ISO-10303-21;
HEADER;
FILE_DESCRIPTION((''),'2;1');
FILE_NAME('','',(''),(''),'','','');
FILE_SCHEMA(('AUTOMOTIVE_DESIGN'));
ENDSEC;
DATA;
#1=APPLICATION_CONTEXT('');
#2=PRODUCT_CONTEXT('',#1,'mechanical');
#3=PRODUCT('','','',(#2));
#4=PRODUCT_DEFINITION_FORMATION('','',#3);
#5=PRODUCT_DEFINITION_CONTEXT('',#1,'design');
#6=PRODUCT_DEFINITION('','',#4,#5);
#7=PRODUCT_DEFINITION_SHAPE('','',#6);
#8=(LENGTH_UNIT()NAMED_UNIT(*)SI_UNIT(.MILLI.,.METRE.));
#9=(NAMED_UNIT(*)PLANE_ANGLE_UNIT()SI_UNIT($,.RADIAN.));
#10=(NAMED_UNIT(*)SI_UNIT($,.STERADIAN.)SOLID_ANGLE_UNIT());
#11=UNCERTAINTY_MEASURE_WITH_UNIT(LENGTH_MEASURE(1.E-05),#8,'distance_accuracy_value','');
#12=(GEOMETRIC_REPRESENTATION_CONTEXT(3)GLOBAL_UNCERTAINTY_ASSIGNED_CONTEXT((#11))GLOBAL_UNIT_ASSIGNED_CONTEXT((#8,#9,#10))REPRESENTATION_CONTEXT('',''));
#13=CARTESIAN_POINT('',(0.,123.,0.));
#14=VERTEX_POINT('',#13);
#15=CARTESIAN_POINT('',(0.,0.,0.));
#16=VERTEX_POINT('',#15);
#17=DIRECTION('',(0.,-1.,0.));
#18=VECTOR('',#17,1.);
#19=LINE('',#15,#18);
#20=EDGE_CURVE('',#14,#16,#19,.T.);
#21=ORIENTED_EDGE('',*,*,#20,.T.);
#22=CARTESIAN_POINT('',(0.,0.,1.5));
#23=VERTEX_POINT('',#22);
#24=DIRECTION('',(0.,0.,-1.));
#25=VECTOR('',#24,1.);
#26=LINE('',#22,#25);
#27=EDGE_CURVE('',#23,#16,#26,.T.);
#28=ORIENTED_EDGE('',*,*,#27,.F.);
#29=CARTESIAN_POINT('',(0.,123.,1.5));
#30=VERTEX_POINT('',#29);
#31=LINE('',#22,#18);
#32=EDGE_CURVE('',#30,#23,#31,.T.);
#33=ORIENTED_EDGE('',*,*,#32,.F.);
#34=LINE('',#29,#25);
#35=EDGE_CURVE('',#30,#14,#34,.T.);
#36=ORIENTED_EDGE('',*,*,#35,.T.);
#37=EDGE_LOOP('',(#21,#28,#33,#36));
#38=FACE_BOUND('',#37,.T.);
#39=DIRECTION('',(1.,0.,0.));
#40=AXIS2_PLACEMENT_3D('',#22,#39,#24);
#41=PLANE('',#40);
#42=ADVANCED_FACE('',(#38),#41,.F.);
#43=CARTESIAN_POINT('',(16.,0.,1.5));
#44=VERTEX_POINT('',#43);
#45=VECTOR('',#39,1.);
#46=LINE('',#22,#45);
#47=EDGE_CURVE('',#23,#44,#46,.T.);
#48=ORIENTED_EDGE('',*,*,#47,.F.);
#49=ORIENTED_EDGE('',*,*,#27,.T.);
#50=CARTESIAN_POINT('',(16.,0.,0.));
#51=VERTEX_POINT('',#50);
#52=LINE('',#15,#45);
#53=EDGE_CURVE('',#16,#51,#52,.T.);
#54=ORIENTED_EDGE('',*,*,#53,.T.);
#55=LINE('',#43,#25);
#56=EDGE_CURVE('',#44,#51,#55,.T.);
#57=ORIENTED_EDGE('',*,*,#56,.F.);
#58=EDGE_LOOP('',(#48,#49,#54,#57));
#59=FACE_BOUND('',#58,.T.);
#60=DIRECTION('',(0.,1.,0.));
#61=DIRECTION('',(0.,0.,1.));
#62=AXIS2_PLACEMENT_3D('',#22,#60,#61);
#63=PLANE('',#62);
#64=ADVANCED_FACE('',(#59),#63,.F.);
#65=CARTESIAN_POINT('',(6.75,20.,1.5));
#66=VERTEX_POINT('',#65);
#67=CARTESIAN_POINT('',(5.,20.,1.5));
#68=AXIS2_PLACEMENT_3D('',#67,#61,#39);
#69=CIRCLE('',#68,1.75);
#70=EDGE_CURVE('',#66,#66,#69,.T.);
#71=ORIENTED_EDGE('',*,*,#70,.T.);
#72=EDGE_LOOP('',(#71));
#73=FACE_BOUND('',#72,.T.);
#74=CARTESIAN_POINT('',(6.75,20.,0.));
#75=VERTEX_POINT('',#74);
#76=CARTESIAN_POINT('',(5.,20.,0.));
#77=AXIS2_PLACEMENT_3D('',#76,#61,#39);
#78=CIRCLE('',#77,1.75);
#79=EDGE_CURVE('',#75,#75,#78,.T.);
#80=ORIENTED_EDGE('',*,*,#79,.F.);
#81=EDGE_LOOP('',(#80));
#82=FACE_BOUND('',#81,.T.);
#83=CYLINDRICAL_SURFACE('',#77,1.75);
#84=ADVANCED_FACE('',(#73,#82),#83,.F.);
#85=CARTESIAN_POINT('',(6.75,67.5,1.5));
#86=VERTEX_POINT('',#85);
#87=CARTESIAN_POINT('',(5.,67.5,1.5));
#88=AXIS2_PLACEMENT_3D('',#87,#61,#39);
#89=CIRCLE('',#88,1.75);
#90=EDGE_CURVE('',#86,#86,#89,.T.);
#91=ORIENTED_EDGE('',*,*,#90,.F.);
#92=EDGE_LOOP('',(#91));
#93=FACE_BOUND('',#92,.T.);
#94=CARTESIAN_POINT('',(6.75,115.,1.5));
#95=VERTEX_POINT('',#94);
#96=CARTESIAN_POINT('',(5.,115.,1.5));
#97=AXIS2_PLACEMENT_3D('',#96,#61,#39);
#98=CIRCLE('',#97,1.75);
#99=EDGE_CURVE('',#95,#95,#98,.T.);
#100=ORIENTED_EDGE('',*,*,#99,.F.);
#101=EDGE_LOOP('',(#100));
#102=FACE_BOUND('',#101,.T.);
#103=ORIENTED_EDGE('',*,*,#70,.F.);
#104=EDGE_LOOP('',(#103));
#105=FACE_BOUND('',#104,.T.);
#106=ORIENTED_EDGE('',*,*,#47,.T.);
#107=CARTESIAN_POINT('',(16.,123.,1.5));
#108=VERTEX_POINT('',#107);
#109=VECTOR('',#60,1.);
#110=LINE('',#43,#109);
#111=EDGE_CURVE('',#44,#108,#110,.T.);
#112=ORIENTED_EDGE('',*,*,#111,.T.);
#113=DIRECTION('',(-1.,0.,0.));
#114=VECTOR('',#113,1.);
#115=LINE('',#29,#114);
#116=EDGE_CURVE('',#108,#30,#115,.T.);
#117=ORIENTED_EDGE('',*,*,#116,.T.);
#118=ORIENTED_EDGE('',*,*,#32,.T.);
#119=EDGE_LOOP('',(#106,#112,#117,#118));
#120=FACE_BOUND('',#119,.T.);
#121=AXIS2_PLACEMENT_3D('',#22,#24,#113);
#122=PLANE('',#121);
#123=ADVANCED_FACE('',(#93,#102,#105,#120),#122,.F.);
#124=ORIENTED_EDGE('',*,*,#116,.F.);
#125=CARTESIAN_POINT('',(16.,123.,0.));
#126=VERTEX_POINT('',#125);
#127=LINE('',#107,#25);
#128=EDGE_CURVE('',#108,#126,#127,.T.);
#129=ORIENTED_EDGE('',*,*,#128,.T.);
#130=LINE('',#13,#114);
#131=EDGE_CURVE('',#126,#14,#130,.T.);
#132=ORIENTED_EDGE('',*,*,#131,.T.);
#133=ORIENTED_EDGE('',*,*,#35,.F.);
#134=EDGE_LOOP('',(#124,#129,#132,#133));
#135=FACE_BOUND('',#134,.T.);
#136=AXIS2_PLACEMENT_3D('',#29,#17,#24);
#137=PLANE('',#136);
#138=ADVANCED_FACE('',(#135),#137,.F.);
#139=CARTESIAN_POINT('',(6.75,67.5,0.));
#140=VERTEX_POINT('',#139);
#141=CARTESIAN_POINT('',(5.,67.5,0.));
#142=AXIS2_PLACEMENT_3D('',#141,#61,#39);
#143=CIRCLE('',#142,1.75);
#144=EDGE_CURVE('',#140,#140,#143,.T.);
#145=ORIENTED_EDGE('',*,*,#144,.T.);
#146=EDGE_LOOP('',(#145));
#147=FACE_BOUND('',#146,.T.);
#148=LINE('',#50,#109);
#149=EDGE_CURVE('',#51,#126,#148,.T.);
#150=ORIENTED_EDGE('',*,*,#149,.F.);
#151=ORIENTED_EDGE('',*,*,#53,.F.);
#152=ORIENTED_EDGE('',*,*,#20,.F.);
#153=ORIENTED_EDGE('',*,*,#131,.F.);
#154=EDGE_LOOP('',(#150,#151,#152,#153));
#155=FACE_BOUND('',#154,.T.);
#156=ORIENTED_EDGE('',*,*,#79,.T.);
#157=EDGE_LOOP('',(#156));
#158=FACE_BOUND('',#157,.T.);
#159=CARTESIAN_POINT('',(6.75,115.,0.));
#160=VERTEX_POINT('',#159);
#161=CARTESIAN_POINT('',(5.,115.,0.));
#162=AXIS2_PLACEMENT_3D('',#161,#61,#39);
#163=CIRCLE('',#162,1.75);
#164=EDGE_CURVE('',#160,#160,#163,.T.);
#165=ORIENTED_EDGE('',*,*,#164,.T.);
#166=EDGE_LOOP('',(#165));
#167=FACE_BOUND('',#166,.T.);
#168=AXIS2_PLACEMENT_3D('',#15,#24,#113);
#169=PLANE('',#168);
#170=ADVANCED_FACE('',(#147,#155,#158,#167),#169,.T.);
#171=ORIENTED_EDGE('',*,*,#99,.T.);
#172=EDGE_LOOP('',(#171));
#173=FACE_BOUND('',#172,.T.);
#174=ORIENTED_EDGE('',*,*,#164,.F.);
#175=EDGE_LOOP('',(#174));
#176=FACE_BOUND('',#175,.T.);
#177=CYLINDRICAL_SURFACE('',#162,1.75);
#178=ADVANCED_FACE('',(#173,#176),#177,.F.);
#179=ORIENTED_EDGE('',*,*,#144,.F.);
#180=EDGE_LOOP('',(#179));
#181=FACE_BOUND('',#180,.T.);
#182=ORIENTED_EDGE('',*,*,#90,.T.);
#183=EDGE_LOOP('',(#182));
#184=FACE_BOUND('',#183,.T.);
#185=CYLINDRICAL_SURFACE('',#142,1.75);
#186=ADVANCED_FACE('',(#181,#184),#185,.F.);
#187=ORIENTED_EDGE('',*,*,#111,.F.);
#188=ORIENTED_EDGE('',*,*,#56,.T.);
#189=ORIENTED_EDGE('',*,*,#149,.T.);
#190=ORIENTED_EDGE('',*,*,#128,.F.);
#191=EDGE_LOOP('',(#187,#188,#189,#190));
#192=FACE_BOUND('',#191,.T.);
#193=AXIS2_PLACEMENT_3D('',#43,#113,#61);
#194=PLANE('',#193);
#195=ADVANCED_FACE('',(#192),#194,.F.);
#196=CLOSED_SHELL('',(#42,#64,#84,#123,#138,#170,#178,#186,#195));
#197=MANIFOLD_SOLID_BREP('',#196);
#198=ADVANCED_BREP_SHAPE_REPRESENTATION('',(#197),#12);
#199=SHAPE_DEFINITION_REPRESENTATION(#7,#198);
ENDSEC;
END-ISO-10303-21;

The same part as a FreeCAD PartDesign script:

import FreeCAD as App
import Part
import Sketcher
Q = App.Units.Quantity

doc = App.newDocument("Part")
body = doc.addObject("PartDesign::Body", "Body")

sketch1 = doc.addObject("Sketcher::SketchObject", "Sketch")
body.addObject(sketch1)
sketch1.AttachmentSupport = (doc.XY_Plane, [""])
sketch1.MapMode = "FlatFace"
sketch1.addGeometry([
    Part.LineSegment(App.Vector(0, 123, 0), App.Vector(0, 0, 0)),
    Part.LineSegment(App.Vector(0, 0, 0), App.Vector(16, 0, 0)),
    Part.LineSegment(App.Vector(16, 0, 0), App.Vector(16, 123, 0)),
    Part.LineSegment(App.Vector(16, 123, 0), App.Vector(0, 123, 0)),
], False)
sketch1.addConstraint([
    Sketcher.Constraint("Coincident", 0, 2, 1, 1),
    Sketcher.Constraint("Coincident", 1, 2, 2, 1),
    Sketcher.Constraint("Coincident", 2, 2, 3, 1),
    Sketcher.Constraint("Coincident", 3, 2, 0, 1),
    Sketcher.Constraint("Vertical", 0),
    Sketcher.Constraint("Horizontal", 1),
    Sketcher.Constraint("Vertical", 2),
    Sketcher.Constraint("Horizontal", 3),
    Sketcher.Constraint("Coincident", 0, 2, -1, 1),
    Sketcher.Constraint("DistanceX", 1, 1, 1, 2, Q("16 mm")),
    Sketcher.Constraint("DistanceY", 0, 2, 0, 1, Q("123 mm")),
])
pad1 = doc.addObject("PartDesign::Pad", "Pad")
body.addObject(pad1)
pad1.Profile = sketch1
pad1.Length = 1.5

sketch2 = doc.addObject("Sketcher::SketchObject", "Sketch001")
body.addObject(sketch2)
sketch2.AttachmentSupport = (doc.XY_Plane, [""])
sketch2.MapMode = "FlatFace"
sketch2.AttachmentOffset = App.Placement(App.Vector(0, 0, 1.5), App.Rotation())
sketch2.addGeometry(Part.Circle(App.Vector(5, 20, 0), App.Vector(0, 0, 1), 1.8), False)
sketch2.addConstraint([
    Sketcher.Constraint("Diameter", 0, Q("3.5 mm")),
    Sketcher.Constraint("DistanceX", -1, 1, 0, 3, Q("5 mm")),
    Sketcher.Constraint("DistanceY", -1, 1, 0, 3, Q("20 mm")),
])
pocket1 = doc.addObject("PartDesign::Pocket", "Pocket")
body.addObject(pocket1)
pocket1.Profile = sketch2
pocket1.Type = "ThroughAll"
doc.recompute()

linearpattern = doc.addObject("PartDesign::LinearPattern", "LinearPattern")
body.addObject(linearpattern)
linearpattern.Originals = [pocket1]
linearpattern.Direction = (doc.Y_Axis, [""])
linearpattern.Mode = "offset"
linearpattern.Offset = 47.5
linearpattern.Occurrences = 3
body.Tip = linearpattern

doc.recompute()
